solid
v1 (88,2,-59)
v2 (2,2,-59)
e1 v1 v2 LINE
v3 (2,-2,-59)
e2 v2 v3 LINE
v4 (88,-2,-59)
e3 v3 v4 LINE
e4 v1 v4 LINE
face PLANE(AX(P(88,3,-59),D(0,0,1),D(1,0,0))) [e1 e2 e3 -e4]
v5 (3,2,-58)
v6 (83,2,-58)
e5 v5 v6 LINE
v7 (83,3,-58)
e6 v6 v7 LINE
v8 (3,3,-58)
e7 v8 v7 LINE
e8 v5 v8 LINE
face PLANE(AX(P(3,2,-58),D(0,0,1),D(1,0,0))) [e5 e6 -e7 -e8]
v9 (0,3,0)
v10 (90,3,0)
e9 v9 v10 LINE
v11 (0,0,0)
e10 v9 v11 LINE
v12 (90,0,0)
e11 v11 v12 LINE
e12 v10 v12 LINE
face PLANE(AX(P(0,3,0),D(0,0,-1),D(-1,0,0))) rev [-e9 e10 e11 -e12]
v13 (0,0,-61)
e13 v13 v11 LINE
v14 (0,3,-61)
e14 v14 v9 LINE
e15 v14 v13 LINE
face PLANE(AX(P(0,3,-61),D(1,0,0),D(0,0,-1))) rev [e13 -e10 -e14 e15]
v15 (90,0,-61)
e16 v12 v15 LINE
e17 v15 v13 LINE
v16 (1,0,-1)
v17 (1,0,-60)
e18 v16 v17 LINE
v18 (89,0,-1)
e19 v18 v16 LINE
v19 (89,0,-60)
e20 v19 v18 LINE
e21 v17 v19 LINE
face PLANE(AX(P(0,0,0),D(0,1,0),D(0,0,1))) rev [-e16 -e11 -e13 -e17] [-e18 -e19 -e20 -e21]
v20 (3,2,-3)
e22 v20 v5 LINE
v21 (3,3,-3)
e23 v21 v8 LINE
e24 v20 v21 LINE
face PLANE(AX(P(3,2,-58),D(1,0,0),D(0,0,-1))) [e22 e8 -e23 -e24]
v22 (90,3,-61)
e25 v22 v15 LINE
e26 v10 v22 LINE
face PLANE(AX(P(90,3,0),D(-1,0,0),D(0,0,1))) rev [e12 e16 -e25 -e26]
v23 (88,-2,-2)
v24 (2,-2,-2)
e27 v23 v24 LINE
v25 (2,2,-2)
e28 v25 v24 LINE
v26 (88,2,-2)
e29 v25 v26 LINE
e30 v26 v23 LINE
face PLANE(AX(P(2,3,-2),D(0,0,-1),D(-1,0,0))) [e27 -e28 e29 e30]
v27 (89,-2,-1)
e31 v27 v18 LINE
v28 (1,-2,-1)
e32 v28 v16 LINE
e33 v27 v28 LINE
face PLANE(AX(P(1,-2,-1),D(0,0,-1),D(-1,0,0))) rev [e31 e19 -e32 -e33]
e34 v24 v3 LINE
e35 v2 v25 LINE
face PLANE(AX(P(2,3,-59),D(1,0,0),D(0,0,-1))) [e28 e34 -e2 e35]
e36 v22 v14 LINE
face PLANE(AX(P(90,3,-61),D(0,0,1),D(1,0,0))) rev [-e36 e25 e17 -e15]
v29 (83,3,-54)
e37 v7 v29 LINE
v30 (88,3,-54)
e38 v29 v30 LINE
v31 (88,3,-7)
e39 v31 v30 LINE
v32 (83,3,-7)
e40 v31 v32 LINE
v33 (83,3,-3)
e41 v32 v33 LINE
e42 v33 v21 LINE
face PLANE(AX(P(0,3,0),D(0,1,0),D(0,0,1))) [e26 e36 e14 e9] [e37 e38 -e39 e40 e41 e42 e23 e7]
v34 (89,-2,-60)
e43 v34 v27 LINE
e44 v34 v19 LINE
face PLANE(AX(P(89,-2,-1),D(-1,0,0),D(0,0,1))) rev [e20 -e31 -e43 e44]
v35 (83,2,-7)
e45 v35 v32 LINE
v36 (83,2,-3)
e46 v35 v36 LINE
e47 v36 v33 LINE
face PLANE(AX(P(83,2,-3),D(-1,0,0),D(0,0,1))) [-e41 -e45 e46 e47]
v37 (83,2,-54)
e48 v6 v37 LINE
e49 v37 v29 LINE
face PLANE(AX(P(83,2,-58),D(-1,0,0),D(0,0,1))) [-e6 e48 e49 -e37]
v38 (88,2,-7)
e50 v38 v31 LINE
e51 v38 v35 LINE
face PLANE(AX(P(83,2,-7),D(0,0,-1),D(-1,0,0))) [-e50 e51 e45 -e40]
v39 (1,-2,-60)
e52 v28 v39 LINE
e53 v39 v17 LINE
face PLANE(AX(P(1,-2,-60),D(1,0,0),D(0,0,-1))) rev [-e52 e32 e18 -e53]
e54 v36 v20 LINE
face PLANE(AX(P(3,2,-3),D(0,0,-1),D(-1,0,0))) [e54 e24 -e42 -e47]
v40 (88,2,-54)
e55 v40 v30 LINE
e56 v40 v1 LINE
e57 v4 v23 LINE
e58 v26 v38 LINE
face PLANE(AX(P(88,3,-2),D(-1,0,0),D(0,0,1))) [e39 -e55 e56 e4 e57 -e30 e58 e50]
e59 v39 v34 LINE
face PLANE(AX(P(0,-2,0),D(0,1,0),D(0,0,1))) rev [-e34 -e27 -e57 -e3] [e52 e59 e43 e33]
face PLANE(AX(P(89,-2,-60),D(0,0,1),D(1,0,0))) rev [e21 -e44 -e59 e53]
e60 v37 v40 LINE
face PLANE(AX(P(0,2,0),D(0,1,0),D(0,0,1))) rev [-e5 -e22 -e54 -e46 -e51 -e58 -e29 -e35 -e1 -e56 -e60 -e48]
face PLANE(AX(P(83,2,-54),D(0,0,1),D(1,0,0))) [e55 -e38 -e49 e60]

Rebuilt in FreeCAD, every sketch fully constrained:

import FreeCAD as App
import Part
import Sketcher


def add_polygon(sketch, points):
    """Adds a closed chain of lines whose ends are joined by coincident constraints."""
    first, n = sketch.GeometryCount, len(points)
    for a, b in zip(points, points[1:] + points[:1]):
        sketch.addGeometry(Part.LineSegment(App.Vector(*a, 0), App.Vector(*b, 0)), False)
    for i in range(n):
        sketch.addConstraint(Sketcher.Constraint("Coincident", first + i, 2, first + (i + 1) % n, 1))

doc = App.newDocument("Part")
params = doc.addObject("Spreadsheet::Sheet", "Params")
for row, (alias, value) in enumerate([
    ("sketch1_width", "90 mm"),
    ("sketch1_width2", "86 mm"),
    ("sketch1_height", "61 mm"),
    ("sketch1_height2", "57 mm"),
    ("pad1_length", "3 mm"),
    ("sketch2_width", "86 mm"),
    ("sketch2_width2", "5 mm"),
    ("sketch2_width3", "80 mm"),
    ("sketch2_height", "57 mm"),
    ("sketch2_height2", "4 mm"),
    ("pad2_length", "1 mm"),
    ("sketch3_width", "88 mm"),
    ("sketch3_width2", "86 mm"),
    ("sketch3_height", "59 mm"),
    ("sketch3_height2", "57 mm"),
    ("pad3_length", "2 mm"),
], start=1):
    params.set(f"A{row}", alias)
    params.set(f"B{row}", "=" + value)
    params.setAlias(f"B{row}", alias)

body = doc.addObject("PartDesign::Body", "Body")

# Sketch on XZ plane
sketch1 = body.newObject("Sketcher::SketchObject", "Sketch")
sketch1.AttachmentSupport = (doc.getObject("XZ_Plane"), [""])
sketch1.MapMode = "FlatFace"
add_polygon(sketch1, [(0, -61), (0, 0), (90, 0), (90, -61)])  # lines 0-3
add_polygon(sketch1, [(88, -2), (2, -2), (2, -59), (88, -59)])  # lines 4-7
sketch1.addConstraint(Sketcher.Constraint("Vertical", 0))
sketch1.addConstraint(Sketcher.Constraint("Horizontal", 1))
sketch1.addConstraint(Sketcher.Constraint("Vertical", 2))
sketch1.addConstraint(Sketcher.Constraint("Horizontal", 3))
sketch1.addConstraint(Sketcher.Constraint("Horizontal", 4))
sketch1.addConstraint(Sketcher.Constraint("Vertical", 5))
sketch1.addConstraint(Sketcher.Constraint("Horizontal", 6))
sketch1.addConstraint(Sketcher.Constraint("Vertical", 7))
sketch1.addConstraint(Sketcher.Constraint("Coincident", 0, 2, -1, 1))
sketch1.addConstraint(Sketcher.Constraint("DistanceX", 1, 1, 1, 2, 90.0))
sketch1.addConstraint(Sketcher.Constraint("DistanceX", 4, 2, 4, 1, 86.0))
sketch1.addConstraint(Sketcher.Constraint("DistanceY", 0, 1, 0, 2, 61.0))
sketch1.addConstraint(Sketcher.Constraint("DistanceY", 5, 2, 5, 1, 57.0))
sketch1.addConstraint(Sketcher.Constraint("DistanceX", -1, 1, 4, 2, 2.0))
sketch1.addConstraint(Sketcher.Constraint("DistanceY", 4, 2, -1, 1, 2.0))
sketch1.setExpression("Constraints[17]", "Params.sketch1_width")
sketch1.setExpression("Constraints[18]", "Params.sketch1_width2")
sketch1.setExpression("Constraints[19]", "Params.sketch1_height")
sketch1.setExpression("Constraints[20]", "Params.sketch1_height2")
pad1 = body.newObject("PartDesign::Pad", "Pad")
pad1.Profile = sketch1
pad1.setExpression("Length", "Params.pad1_length")
pad1.Reversed = True

# Sketch on XZ plane
sketch2 = body.newObject("Sketcher::SketchObject", "Sketch001")
sketch2.AttachmentSupport = (doc.getObject("XZ_Plane"), [""])
sketch2.MapMode = "FlatFace"
sketch2.AttachmentOffset = App.Placement(App.Vector(0, 0, -3), App.Rotation())
add_polygon(sketch2, [(88, -59), (2, -59), (2, -2), (88, -2), (88, -7), (83, -7), (83, -3), (3, -3), (3, -58), (83, -58), (83, -54), (88, -54)])  # lines 0-11
sketch2.addConstraint(Sketcher.Constraint("Horizontal", 0))
sketch2.addConstraint(Sketcher.Constraint("Vertical", 1))
sketch2.addConstraint(Sketcher.Constraint("Horizontal", 2))
sketch2.addConstraint(Sketcher.Constraint("Vertical", 3))
sketch2.addConstraint(Sketcher.Constraint("Horizontal", 4))
sketch2.addConstraint(Sketcher.Constraint("Vertical", 5))
sketch2.addConstraint(Sketcher.Constraint("Horizontal", 6))
sketch2.addConstraint(Sketcher.Constraint("Vertical", 7))
sketch2.addConstraint(Sketcher.Constraint("Horizontal", 8))
sketch2.addConstraint(Sketcher.Constraint("Vertical", 9))
sketch2.addConstraint(Sketcher.Constraint("Horizontal", 10))
sketch2.addConstraint(Sketcher.Constraint("Vertical", 11))
sketch2.addConstraint(Sketcher.Constraint("Vertical", 5, 2, 8, 2))
sketch2.addConstraint(Sketcher.Constraint("Vertical", 3, 2, 10, 2))
sketch2.addConstraint(Sketcher.Constraint("Equal", 10, 3))
sketch2.addConstraint(Sketcher.Constraint("Equal", 5, 9))
sketch2.addConstraint(Sketcher.Constraint("Equal", 3, 11))
sketch2.addConstraint(Sketcher.Constraint("DistanceX", 0, 2, 0, 1, 86.0))
sketch2.addConstraint(Sketcher.Constraint("DistanceX", 4, 2, 4, 1, 5.0))
sketch2.addConstraint(Sketcher.Constraint("DistanceX", 6, 2, 6, 1, 80.0))
sketch2.addConstraint(Sketcher.Constraint("DistanceY", 1, 1, 1, 2, 57.0))
sketch2.addConstraint(Sketcher.Constraint("DistanceY", 5, 1, 5, 2, 4.0))
sketch2.addConstraint(Sketcher.Constraint("DistanceX", -1, 1, 0, 2, 2.0))
sketch2.addConstraint(Sketcher.Constraint("DistanceY", 0, 2, -1, 1, 59.0))
sketch2.setExpression("Constraints[29]", "Params.sketch2_width")
sketch2.setExpression("Constraints[30]", "Params.sketch2_width2")
sketch2.setExpression("Constraints[31]", "Params.sketch2_width3")
sketch2.setExpression("Constraints[32]", "Params.sketch2_height")
sketch2.setExpression("Constraints[33]", "Params.sketch2_height2")
pad2 = body.newObject("PartDesign::Pad", "Pad001")
pad2.Profile = sketch2
pad2.setExpression("Length", "Params.pad2_length")

# Sketch on XZ plane
sketch3 = body.newObject("Sketcher::SketchObject", "Sketch002")
sketch3.AttachmentSupport = (doc.getObject("XZ_Plane"), [""])
sketch3.MapMode = "FlatFace"
add_polygon(sketch3, [(1, -1), (1, -60), (89, -60), (89, -1)])  # lines 0-3
add_polygon(sketch3, [(88, -59), (2, -59), (2, -2), (88, -2)])  # lines 4-7
sketch3.addConstraint(Sketcher.Constraint("Vertical", 0))
sketch3.addConstraint(Sketcher.Constraint("Horizontal", 1))
sketch3.addConstraint(Sketcher.Constraint("Vertical", 2))
sketch3.addConstraint(Sketcher.Constraint("Horizontal", 3))
sketch3.addConstraint(Sketcher.Constraint("Horizontal", 4))
sketch3.addConstraint(Sketcher.Constraint("Vertical", 5))
sketch3.addConstraint(Sketcher.Constraint("Horizontal", 6))
sketch3.addConstraint(Sketcher.Constraint("Vertical", 7))
sketch3.addConstraint(Sketcher.Constraint("DistanceX", 1, 1, 1, 2, 88.0))
sketch3.addConstraint(Sketcher.Constraint("DistanceX", 4, 2, 4, 1, 86.0))
sketch3.addConstraint(Sketcher.Constraint("DistanceY", 0, 2, 0, 1, 59.0))
sketch3.addConstraint(Sketcher.Constraint("DistanceY", 5, 1, 5, 2, 57.0))
sketch3.addConstraint(Sketcher.Constraint("DistanceX", -1, 1, 0, 2, 1.0))
sketch3.addConstraint(Sketcher.Constraint("DistanceY", 0, 2, -1, 1, 60.0))
sketch3.addConstraint(Sketcher.Constraint("DistanceX", -1, 1, 4, 2, 2.0))
sketch3.addConstraint(Sketcher.Constraint("DistanceY", 4, 2, -1, 1, 59.0))
sketch3.setExpression("Constraints[16]", "Params.sketch3_width")
sketch3.setExpression("Constraints[17]", "Params.sketch3_width2")
sketch3.setExpression("Constraints[18]", "Params.sketch3_height")
sketch3.setExpression("Constraints[19]", "Params.sketch3_height2")
pad3 = body.newObject("PartDesign::Pad", "Pad002")
pad3.Profile = sketch3
pad3.setExpression("Length", "Params.pad3_length")

doc.recompute()
